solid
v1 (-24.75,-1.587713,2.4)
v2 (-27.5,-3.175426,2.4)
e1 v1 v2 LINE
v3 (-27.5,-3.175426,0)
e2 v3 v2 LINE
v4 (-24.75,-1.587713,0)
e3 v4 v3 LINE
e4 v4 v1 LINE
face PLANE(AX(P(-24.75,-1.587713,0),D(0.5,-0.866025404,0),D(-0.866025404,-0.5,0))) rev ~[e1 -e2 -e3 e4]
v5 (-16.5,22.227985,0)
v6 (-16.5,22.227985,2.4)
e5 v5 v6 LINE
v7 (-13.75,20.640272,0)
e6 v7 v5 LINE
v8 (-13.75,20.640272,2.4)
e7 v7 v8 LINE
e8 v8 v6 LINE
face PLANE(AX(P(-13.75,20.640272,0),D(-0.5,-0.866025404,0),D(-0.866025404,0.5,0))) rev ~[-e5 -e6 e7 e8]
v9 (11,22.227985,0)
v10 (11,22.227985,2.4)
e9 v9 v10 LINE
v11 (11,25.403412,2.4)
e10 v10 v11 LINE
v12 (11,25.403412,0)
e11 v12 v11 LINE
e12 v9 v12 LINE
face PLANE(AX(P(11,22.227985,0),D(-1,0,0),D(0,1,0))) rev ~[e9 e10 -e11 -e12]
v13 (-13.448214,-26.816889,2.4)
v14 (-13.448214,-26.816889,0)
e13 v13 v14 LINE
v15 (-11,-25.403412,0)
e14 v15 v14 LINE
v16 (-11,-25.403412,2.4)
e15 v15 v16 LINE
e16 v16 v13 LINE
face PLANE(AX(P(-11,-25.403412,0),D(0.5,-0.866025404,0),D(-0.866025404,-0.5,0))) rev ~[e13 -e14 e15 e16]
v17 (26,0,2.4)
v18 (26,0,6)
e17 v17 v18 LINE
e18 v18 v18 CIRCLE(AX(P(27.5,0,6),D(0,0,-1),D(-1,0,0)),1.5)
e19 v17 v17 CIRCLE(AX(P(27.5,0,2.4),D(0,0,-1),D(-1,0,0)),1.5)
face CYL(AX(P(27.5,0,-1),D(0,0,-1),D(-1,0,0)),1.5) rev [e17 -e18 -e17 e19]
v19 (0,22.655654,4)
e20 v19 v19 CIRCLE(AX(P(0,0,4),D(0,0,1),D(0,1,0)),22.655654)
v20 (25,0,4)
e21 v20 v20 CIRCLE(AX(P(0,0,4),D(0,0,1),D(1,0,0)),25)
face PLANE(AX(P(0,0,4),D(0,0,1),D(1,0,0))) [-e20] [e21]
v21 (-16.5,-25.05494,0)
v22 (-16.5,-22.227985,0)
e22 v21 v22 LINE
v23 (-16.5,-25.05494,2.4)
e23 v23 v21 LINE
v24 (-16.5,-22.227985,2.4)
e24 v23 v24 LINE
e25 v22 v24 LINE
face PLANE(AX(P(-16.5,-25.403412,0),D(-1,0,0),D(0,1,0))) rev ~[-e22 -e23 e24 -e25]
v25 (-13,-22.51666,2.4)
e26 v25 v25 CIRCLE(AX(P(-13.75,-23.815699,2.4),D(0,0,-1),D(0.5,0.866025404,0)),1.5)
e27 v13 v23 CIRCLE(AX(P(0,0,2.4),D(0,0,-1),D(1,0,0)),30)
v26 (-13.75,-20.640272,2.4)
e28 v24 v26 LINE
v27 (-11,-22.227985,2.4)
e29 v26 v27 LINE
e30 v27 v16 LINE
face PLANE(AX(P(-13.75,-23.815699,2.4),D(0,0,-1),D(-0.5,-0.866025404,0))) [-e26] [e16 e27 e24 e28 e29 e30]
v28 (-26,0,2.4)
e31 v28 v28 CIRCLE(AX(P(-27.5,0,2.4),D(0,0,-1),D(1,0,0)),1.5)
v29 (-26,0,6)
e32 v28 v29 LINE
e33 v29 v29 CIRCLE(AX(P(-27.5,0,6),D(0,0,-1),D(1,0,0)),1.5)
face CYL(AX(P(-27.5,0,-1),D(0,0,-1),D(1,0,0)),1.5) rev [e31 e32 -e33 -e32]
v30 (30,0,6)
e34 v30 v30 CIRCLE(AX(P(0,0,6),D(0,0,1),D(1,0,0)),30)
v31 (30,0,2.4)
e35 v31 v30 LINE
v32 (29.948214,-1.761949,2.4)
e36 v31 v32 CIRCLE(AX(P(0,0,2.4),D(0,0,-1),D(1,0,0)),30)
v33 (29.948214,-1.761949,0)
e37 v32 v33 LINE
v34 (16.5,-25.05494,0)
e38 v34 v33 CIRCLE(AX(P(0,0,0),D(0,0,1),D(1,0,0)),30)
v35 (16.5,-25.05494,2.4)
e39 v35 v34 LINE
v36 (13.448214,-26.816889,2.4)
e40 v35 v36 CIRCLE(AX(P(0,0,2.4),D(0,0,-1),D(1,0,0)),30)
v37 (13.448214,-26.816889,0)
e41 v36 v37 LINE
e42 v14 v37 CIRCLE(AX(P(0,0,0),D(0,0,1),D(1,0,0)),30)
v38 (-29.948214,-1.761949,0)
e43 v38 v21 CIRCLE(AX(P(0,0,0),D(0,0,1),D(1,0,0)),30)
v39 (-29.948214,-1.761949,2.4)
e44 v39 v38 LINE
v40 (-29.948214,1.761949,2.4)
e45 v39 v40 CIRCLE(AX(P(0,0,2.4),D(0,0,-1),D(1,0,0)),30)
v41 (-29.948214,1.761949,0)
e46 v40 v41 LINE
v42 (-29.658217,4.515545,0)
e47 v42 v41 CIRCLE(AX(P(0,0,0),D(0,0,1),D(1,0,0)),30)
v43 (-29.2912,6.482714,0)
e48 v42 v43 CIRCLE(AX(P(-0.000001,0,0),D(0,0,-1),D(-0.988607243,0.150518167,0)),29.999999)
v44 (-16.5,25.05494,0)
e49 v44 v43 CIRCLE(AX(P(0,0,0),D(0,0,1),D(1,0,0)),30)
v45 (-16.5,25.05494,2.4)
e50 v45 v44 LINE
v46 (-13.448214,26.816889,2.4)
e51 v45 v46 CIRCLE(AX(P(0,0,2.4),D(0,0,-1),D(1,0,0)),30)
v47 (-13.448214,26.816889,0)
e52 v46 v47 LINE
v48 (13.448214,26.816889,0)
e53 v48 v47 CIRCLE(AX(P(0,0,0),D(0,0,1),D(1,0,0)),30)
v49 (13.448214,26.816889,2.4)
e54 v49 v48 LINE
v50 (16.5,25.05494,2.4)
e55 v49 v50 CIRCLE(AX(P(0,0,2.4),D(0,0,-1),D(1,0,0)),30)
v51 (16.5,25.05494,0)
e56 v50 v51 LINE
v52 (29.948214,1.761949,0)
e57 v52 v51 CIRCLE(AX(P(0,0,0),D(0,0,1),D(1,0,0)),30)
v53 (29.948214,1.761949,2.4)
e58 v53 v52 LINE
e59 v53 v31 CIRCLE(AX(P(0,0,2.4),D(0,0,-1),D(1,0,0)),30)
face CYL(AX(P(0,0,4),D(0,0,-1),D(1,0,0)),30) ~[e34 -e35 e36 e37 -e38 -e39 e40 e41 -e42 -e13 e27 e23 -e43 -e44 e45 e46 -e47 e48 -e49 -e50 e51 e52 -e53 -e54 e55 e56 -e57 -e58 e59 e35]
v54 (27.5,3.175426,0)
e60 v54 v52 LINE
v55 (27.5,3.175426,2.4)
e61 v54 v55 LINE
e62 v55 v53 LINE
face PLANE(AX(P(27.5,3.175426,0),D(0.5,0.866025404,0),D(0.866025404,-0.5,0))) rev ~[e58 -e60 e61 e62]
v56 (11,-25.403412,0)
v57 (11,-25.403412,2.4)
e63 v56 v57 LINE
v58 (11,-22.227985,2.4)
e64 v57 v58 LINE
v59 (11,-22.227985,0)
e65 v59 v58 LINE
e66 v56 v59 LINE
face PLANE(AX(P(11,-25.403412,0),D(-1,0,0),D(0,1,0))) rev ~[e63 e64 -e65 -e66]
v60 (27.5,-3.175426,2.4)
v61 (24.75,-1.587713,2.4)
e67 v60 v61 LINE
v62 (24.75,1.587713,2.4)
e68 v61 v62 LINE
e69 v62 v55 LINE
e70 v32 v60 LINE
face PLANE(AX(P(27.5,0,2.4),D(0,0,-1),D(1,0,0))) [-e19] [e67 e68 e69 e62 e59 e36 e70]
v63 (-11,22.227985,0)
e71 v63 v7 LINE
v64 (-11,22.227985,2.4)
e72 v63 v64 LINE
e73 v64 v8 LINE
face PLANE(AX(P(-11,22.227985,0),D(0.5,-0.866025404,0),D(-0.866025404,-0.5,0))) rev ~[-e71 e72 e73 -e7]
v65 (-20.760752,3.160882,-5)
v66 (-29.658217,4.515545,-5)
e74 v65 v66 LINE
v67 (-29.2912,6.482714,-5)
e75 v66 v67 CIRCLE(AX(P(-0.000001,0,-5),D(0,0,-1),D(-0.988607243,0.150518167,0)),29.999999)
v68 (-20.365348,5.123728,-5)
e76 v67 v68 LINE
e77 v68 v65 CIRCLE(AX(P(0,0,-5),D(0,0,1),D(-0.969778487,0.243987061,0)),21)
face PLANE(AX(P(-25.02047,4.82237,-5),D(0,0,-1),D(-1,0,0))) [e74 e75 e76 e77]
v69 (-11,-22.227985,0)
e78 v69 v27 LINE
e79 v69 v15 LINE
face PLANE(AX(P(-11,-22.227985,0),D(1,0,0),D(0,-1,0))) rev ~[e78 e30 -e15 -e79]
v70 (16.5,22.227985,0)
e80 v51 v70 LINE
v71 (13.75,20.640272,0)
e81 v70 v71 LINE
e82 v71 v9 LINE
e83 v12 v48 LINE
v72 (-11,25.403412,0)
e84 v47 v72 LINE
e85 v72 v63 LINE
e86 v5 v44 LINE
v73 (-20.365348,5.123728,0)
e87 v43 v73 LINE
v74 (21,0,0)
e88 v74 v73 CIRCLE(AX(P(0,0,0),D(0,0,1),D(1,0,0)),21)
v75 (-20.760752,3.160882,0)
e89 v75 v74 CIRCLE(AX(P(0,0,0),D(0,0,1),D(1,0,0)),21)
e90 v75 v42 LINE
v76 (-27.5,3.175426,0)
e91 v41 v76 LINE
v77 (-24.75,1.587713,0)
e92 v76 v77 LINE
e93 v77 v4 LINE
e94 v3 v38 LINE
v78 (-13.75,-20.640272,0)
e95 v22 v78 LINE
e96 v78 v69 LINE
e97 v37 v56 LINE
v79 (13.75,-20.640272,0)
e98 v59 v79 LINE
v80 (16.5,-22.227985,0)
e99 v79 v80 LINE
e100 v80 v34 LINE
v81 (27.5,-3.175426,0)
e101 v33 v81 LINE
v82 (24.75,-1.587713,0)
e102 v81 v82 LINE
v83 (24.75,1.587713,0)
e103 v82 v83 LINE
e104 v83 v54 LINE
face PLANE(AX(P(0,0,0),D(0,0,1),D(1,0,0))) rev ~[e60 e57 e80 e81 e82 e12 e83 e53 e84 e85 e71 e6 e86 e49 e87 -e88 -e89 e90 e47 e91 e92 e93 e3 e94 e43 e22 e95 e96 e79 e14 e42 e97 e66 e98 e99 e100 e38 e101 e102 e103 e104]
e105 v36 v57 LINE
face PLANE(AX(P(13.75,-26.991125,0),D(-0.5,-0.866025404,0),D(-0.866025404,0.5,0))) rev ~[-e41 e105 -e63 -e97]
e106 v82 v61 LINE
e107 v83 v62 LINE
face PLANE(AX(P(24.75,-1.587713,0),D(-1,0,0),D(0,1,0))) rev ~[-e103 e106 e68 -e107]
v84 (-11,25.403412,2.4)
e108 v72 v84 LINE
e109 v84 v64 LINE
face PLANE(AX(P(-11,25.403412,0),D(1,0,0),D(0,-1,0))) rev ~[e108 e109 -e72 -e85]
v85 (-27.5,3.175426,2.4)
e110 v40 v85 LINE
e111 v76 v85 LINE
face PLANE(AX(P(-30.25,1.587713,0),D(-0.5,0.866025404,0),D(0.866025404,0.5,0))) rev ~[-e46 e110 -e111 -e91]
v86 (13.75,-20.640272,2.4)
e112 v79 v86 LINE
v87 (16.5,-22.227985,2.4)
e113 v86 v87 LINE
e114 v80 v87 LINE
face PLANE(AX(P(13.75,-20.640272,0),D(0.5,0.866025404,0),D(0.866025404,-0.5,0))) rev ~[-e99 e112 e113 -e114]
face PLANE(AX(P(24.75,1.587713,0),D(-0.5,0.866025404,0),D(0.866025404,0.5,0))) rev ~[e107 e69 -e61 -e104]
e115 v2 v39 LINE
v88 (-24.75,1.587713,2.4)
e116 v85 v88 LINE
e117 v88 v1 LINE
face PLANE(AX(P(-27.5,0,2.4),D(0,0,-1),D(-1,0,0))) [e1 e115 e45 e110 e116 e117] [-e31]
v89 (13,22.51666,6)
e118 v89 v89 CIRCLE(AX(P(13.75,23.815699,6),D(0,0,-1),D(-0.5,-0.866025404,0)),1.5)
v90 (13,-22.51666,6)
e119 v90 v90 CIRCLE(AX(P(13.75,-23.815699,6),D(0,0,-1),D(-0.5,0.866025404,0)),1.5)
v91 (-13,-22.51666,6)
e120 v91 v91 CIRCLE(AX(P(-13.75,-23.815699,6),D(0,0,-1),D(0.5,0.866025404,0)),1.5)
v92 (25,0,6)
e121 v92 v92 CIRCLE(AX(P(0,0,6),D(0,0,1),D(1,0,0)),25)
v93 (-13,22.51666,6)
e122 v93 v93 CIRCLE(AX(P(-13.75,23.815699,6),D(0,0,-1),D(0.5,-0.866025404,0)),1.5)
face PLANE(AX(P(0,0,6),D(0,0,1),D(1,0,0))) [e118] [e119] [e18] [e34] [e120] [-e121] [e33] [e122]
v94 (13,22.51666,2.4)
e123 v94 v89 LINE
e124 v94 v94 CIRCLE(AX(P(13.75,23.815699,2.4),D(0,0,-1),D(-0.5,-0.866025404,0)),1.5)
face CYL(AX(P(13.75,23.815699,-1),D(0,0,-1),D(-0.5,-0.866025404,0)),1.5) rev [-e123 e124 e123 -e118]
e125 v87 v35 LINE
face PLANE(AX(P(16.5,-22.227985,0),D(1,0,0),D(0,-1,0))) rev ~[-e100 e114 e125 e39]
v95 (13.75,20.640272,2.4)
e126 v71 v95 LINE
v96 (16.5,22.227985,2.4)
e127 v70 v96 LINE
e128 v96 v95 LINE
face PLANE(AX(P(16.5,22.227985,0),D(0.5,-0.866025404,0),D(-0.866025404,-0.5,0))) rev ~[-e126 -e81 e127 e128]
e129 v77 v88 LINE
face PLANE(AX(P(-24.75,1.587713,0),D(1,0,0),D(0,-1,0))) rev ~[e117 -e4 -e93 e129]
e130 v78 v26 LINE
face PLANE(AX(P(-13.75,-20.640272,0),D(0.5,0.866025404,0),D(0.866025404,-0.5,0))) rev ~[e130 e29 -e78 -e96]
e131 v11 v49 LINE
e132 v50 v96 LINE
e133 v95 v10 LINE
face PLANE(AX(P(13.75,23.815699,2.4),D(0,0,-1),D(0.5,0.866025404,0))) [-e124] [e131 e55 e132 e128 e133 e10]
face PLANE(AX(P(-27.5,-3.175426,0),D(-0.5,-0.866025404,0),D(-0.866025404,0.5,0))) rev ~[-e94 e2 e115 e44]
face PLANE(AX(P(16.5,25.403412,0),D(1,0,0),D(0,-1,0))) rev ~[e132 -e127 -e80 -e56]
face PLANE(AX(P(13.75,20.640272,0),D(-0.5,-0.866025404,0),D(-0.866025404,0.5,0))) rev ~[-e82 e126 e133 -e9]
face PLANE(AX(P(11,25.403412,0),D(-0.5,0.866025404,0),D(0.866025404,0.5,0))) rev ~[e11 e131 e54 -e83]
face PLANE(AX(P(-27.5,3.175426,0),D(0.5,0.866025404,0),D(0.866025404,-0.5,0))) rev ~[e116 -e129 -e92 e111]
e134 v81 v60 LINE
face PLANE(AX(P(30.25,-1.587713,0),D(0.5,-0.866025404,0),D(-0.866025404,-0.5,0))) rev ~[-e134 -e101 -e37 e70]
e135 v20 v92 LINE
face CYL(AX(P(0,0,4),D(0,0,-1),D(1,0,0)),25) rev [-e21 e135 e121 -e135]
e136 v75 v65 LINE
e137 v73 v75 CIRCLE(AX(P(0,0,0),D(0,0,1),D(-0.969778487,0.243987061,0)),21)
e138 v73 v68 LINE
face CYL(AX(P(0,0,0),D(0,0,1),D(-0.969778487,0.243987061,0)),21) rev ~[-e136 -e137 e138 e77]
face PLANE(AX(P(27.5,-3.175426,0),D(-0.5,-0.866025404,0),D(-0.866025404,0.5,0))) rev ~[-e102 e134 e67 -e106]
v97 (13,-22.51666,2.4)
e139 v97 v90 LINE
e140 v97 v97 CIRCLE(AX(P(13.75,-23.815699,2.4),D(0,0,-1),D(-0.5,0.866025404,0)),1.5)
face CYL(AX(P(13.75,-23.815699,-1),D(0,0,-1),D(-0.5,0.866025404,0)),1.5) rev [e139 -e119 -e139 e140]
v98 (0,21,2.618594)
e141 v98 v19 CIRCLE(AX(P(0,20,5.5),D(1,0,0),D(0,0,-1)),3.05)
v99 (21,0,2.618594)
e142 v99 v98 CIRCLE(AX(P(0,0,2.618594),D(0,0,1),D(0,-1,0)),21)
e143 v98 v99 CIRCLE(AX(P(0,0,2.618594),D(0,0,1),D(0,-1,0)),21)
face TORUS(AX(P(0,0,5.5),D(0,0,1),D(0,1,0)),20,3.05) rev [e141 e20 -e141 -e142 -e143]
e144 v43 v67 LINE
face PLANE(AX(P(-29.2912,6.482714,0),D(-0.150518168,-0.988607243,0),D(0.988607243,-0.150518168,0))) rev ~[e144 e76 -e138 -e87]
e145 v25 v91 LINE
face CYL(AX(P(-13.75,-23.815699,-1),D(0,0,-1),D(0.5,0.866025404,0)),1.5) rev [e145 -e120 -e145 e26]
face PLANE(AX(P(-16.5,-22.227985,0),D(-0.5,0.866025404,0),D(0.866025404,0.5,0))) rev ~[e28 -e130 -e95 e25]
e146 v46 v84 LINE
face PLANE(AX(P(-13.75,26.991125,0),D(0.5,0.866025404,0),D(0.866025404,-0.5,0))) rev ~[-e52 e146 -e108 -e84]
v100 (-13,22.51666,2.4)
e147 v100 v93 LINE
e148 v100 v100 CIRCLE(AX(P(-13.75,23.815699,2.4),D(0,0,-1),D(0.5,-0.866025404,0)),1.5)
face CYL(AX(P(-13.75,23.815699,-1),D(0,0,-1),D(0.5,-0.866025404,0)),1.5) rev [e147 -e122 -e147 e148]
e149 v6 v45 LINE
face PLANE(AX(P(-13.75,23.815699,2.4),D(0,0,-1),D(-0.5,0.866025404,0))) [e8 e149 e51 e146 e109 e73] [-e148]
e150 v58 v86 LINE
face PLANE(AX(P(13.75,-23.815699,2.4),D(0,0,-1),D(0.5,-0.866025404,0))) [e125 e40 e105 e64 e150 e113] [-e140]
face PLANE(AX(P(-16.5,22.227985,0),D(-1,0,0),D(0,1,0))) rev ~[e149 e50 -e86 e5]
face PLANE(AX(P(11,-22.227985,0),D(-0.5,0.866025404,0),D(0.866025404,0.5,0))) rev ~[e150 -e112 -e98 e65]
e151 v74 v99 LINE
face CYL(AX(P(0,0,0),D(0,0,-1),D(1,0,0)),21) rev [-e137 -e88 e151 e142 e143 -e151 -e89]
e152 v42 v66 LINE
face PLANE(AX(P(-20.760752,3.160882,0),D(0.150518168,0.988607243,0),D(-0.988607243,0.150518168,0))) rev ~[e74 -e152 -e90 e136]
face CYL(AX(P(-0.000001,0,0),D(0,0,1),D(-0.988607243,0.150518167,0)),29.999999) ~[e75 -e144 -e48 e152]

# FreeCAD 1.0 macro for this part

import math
import FreeCAD as App
import Part
import Sketcher
from FreeCAD import Vector
Q = App.Units.Quantity


def add_polygon(sketch, points):
    """Adds a closed chain of lines whose ends are joined by coincident constraints."""
    first, n = sketch.GeometryCount, len(points)
    for a, b in zip(points, points[1:] + points[:1]):
        sketch.addGeometry(Part.LineSegment(App.Vector(*a, 0), App.Vector(*b, 0)), False)
    for i in range(n):
        sketch.addConstraint(Sketcher.Constraint("Coincident", first + i, 2, first + (i + 1) % n, 1))

doc = App.newDocument("Part")
body = doc.addObject("PartDesign::Body", "Body")

# Sketch on XY plane
sketch1 = body.newObject("Sketcher::SketchObject", "Sketch")
sketch1.AttachmentSupport = (doc.getObject("XY_Plane"), [""])
sketch1.MapMode = "FlatFace"
sketch1.addGeometry(Part.Circle(Vector(0, 0, 0), Vector(0, 0, 1), 30), False)
sketch1.addGeometry(Part.Circle(Vector(0, 0, 0), Vector(0, 0, 1), 21), False)
sketch1.addConstraint(Sketcher.Constraint("Coincident", 0, 3, -1, 1))
sketch1.addConstraint(Sketcher.Constraint("Coincident", 1, 3, -1, 1))
sketch1.addConstraint(Sketcher.Constraint("Diameter", 0, 60.0))
sketch1.addConstraint(Sketcher.Constraint("Diameter", 1, 42.0))
pad1 = body.newObject("PartDesign::Pad", "Pad")
pad1.Profile = sketch1
pad1.Length = 4

# Sketch on YZ plane
sketch2 = body.newObject("Sketcher::SketchObject", "Sketch001")
sketch2.AttachmentSupport = (doc.getObject("YZ_Plane"), [""])
sketch2.MapMode = "FlatFace"
sketch2.addGeometry(Part.Circle(Vector(20, 5.5, 0), Vector(0, 0, 1), 3.05), False)
sketch2.addConstraint(Sketcher.Constraint("Diameter", 0, 6.1))
sketch2.addConstraint(Sketcher.Constraint("DistanceX", -1, 1, 0, 3, 20.0))
sketch2.addConstraint(Sketcher.Constraint("DistanceY", -1, 1, 0, 3, 5.5))
groove = body.newObject("PartDesign::Groove", "Groove")
groove.Profile = sketch2
groove.ReferenceAxis = (sketch2, ["V_Axis"])
groove.Angle = 360

# Sketch on XY plane
sketch3 = body.newObject("Sketcher::SketchObject", "Sketch002")
sketch3.AttachmentSupport = (doc.getObject("XY_Plane"), [""])
sketch3.MapMode = "FlatFace"
sketch3.AttachmentOffset = App.Placement(Vector(0, 0, 4), App.Rotation())
sketch3.addGeometry(Part.Circle(Vector(0, 0, 0), Vector(0, 0, 1), 30), False)
sketch3.addGeometry(Part.Circle(Vector(0, 0, 0), Vector(0, 0, 1), 25), False)
sketch3.addConstraint(Sketcher.Constraint("Coincident", 0, 3, -1, 1))
sketch3.addConstraint(Sketcher.Constraint("Coincident", 1, 3, -1, 1))
sketch3.addConstraint(Sketcher.Constraint("Diameter", 0, 60.0))
sketch3.addConstraint(Sketcher.Constraint("Diameter", 1, 50.0))
pad2 = body.newObject("PartDesign::Pad", "Pad001")
pad2.Profile = sketch3
pad2.Length = 2

# Sketch on XY plane
sketch4 = body.newObject("Sketcher::SketchObject", "Sketch003")
sketch4.AttachmentSupport = (doc.getObject("XY_Plane"), [""])
sketch4.MapMode = "FlatFace"
sketch4.AttachmentOffset = App.Placement(Vector(0, 0, -1), App.Rotation())
sketch4.addGeometry(Part.Circle(Vector(-27.5, 0, 0), Vector(0, 0, 1), 1.5), False)
sketch4.addConstraint(Sketcher.Constraint("PointOnObject", 0, 3, -1))
sketch4.addConstraint(Sketcher.Constraint("Diameter", 0, 3.0))
sketch4.addConstraint(Sketcher.Constraint("DistanceX", 0, 3, -1, 1, 27.5))
pocket1 = body.newObject("PartDesign::Pocket", "Pocket")
pocket1.Profile = sketch4
pocket1.Length = 8
pocket1.Reversed = True

# Sketch on XY plane
sketch5 = body.newObject("Sketcher::SketchObject", "Sketch004")
sketch5.AttachmentSupport = (doc.getObject("XY_Plane"), [""])
sketch5.MapMode = "FlatFace"
add_polygon(sketch5, [(-30.25, 1.587713), (-27.5, 3.175426), (-24.75, 1.587713), (-24.75, -1.587713), (-27.5, -3.175426), (-30.25, -1.587713)])  # lines 0-5
sketch5.addConstraint(Sketcher.Constraint("Vertical", 2))
sketch5.addConstraint(Sketcher.Constraint("Vertical", 5))
sketch5.addConstraint(Sketcher.Constraint("Symmetric", 0, 2, 3, 2, -1))
sketch5.addConstraint(Sketcher.Constraint("Parallel", 0, 3))
sketch5.addConstraint(Sketcher.Constraint("Parallel", 1, 4))
sketch5.addConstraint(Sketcher.Constraint("Horizontal", 2, 2, 4, 2))
sketch5.addConstraint(Sketcher.Constraint("Horizontal", 1, 2, 5, 2))
sketch5.addConstraint(Sketcher.Constraint("Angle", 0, Q("30 deg")))
sketch5.addConstraint(Sketcher.Constraint("DistanceX", 0, 2, -1, 1, 27.5))
sketch5.addConstraint(Sketcher.Constraint("DistanceX", 4, 2, 2, 2, 5.5))
sketch5.addConstraint(Sketcher.Constraint("DistanceY", 2, 2, 2, 1, 3.175426))
pocket2 = body.newObject("PartDesign::Pocket", "Pocket001")
pocket2.Profile = sketch5
pocket2.Length = 2.4
pocket2.Reversed = True
doc.recompute()

polarpattern = body.newObject("PartDesign::PolarPattern", "PolarPattern")
polarpattern.Originals = [pocket1, pocket2]
polarpattern.Axis = (doc.getObject("Z_Axis"), [""])
polarpattern.Angle = 360
polarpattern.Occurrences = 6
body.Tip = polarpattern

# Sketch on XY plane
sketch6 = body.newObject("Sketcher::SketchObject", "Sketch005")
sketch6.AttachmentSupport = (doc.getObject("XY_Plane"), [""])
sketch6.MapMode = "FlatFace"
sketch6.addGeometry(Part.LineSegment(Vector(-20.760752, 3.160882, 0), Vector(-29.658217, 4.515545, 0)), False)
sketch6.addGeometry(Part.ArcOfCircle(Part.Circle(Vector(-0.000001, 0, 0), Vector(0, 0, 1), 29.999999), math.radians(167.52049), math.radians(171.343044)), False)
sketch6.addGeometry(Part.LineSegment(Vector(-29.2912, 6.482714, 0), Vector(-20.365348, 5.123728, 0)), False)
sketch6.addGeometry(Part.ArcOfCircle(Part.Circle(Vector(0, 0, 0), Vector(0, 0, 1), 21), math.radians(165.87802), math.radians(171.343044)), False)
sketch6.addConstraint(Sketcher.Constraint("Coincident", 0, 2, 1, 2))
sketch6.addConstraint(Sketcher.Constraint("Coincident", 1, 1, 2, 1))
sketch6.addConstraint(Sketcher.Constraint("Coincident", 2, 2, 3, 1))
sketch6.addConstraint(Sketcher.Constraint("Coincident", 3, 2, 0, 1))
sketch6.addConstraint(Sketcher.Constraint("Coincident", 1, 3, -1, 1))
sketch6.addConstraint(Sketcher.Constraint("Coincident", 3, 3, -1, 1))
sketch6.addConstraint(Sketcher.Constraint("Parallel", 0, 2))
sketch6.addConstraint(Sketcher.Constraint("Radius", 1, 29.999999))
sketch6.addConstraint(Sketcher.Constraint("Radius", 3, 21.0))
sketch6.addConstraint(Sketcher.Constraint("DistanceX", 1, 1, -1, 1, 29.2912))
sketch6.addConstraint(Sketcher.Constraint("DistanceX", 2, 2, -1, 1, 20.365348))
sketch6.addConstraint(Sketcher.Constraint("DistanceY", -1, 1, 3, 2, 3.160882))
pad3 = body.newObject("PartDesign::Pad", "Pad002")
pad3.Profile = sketch6
pad3.Length = 5
pad3.Reversed = True

doc.recompute()
